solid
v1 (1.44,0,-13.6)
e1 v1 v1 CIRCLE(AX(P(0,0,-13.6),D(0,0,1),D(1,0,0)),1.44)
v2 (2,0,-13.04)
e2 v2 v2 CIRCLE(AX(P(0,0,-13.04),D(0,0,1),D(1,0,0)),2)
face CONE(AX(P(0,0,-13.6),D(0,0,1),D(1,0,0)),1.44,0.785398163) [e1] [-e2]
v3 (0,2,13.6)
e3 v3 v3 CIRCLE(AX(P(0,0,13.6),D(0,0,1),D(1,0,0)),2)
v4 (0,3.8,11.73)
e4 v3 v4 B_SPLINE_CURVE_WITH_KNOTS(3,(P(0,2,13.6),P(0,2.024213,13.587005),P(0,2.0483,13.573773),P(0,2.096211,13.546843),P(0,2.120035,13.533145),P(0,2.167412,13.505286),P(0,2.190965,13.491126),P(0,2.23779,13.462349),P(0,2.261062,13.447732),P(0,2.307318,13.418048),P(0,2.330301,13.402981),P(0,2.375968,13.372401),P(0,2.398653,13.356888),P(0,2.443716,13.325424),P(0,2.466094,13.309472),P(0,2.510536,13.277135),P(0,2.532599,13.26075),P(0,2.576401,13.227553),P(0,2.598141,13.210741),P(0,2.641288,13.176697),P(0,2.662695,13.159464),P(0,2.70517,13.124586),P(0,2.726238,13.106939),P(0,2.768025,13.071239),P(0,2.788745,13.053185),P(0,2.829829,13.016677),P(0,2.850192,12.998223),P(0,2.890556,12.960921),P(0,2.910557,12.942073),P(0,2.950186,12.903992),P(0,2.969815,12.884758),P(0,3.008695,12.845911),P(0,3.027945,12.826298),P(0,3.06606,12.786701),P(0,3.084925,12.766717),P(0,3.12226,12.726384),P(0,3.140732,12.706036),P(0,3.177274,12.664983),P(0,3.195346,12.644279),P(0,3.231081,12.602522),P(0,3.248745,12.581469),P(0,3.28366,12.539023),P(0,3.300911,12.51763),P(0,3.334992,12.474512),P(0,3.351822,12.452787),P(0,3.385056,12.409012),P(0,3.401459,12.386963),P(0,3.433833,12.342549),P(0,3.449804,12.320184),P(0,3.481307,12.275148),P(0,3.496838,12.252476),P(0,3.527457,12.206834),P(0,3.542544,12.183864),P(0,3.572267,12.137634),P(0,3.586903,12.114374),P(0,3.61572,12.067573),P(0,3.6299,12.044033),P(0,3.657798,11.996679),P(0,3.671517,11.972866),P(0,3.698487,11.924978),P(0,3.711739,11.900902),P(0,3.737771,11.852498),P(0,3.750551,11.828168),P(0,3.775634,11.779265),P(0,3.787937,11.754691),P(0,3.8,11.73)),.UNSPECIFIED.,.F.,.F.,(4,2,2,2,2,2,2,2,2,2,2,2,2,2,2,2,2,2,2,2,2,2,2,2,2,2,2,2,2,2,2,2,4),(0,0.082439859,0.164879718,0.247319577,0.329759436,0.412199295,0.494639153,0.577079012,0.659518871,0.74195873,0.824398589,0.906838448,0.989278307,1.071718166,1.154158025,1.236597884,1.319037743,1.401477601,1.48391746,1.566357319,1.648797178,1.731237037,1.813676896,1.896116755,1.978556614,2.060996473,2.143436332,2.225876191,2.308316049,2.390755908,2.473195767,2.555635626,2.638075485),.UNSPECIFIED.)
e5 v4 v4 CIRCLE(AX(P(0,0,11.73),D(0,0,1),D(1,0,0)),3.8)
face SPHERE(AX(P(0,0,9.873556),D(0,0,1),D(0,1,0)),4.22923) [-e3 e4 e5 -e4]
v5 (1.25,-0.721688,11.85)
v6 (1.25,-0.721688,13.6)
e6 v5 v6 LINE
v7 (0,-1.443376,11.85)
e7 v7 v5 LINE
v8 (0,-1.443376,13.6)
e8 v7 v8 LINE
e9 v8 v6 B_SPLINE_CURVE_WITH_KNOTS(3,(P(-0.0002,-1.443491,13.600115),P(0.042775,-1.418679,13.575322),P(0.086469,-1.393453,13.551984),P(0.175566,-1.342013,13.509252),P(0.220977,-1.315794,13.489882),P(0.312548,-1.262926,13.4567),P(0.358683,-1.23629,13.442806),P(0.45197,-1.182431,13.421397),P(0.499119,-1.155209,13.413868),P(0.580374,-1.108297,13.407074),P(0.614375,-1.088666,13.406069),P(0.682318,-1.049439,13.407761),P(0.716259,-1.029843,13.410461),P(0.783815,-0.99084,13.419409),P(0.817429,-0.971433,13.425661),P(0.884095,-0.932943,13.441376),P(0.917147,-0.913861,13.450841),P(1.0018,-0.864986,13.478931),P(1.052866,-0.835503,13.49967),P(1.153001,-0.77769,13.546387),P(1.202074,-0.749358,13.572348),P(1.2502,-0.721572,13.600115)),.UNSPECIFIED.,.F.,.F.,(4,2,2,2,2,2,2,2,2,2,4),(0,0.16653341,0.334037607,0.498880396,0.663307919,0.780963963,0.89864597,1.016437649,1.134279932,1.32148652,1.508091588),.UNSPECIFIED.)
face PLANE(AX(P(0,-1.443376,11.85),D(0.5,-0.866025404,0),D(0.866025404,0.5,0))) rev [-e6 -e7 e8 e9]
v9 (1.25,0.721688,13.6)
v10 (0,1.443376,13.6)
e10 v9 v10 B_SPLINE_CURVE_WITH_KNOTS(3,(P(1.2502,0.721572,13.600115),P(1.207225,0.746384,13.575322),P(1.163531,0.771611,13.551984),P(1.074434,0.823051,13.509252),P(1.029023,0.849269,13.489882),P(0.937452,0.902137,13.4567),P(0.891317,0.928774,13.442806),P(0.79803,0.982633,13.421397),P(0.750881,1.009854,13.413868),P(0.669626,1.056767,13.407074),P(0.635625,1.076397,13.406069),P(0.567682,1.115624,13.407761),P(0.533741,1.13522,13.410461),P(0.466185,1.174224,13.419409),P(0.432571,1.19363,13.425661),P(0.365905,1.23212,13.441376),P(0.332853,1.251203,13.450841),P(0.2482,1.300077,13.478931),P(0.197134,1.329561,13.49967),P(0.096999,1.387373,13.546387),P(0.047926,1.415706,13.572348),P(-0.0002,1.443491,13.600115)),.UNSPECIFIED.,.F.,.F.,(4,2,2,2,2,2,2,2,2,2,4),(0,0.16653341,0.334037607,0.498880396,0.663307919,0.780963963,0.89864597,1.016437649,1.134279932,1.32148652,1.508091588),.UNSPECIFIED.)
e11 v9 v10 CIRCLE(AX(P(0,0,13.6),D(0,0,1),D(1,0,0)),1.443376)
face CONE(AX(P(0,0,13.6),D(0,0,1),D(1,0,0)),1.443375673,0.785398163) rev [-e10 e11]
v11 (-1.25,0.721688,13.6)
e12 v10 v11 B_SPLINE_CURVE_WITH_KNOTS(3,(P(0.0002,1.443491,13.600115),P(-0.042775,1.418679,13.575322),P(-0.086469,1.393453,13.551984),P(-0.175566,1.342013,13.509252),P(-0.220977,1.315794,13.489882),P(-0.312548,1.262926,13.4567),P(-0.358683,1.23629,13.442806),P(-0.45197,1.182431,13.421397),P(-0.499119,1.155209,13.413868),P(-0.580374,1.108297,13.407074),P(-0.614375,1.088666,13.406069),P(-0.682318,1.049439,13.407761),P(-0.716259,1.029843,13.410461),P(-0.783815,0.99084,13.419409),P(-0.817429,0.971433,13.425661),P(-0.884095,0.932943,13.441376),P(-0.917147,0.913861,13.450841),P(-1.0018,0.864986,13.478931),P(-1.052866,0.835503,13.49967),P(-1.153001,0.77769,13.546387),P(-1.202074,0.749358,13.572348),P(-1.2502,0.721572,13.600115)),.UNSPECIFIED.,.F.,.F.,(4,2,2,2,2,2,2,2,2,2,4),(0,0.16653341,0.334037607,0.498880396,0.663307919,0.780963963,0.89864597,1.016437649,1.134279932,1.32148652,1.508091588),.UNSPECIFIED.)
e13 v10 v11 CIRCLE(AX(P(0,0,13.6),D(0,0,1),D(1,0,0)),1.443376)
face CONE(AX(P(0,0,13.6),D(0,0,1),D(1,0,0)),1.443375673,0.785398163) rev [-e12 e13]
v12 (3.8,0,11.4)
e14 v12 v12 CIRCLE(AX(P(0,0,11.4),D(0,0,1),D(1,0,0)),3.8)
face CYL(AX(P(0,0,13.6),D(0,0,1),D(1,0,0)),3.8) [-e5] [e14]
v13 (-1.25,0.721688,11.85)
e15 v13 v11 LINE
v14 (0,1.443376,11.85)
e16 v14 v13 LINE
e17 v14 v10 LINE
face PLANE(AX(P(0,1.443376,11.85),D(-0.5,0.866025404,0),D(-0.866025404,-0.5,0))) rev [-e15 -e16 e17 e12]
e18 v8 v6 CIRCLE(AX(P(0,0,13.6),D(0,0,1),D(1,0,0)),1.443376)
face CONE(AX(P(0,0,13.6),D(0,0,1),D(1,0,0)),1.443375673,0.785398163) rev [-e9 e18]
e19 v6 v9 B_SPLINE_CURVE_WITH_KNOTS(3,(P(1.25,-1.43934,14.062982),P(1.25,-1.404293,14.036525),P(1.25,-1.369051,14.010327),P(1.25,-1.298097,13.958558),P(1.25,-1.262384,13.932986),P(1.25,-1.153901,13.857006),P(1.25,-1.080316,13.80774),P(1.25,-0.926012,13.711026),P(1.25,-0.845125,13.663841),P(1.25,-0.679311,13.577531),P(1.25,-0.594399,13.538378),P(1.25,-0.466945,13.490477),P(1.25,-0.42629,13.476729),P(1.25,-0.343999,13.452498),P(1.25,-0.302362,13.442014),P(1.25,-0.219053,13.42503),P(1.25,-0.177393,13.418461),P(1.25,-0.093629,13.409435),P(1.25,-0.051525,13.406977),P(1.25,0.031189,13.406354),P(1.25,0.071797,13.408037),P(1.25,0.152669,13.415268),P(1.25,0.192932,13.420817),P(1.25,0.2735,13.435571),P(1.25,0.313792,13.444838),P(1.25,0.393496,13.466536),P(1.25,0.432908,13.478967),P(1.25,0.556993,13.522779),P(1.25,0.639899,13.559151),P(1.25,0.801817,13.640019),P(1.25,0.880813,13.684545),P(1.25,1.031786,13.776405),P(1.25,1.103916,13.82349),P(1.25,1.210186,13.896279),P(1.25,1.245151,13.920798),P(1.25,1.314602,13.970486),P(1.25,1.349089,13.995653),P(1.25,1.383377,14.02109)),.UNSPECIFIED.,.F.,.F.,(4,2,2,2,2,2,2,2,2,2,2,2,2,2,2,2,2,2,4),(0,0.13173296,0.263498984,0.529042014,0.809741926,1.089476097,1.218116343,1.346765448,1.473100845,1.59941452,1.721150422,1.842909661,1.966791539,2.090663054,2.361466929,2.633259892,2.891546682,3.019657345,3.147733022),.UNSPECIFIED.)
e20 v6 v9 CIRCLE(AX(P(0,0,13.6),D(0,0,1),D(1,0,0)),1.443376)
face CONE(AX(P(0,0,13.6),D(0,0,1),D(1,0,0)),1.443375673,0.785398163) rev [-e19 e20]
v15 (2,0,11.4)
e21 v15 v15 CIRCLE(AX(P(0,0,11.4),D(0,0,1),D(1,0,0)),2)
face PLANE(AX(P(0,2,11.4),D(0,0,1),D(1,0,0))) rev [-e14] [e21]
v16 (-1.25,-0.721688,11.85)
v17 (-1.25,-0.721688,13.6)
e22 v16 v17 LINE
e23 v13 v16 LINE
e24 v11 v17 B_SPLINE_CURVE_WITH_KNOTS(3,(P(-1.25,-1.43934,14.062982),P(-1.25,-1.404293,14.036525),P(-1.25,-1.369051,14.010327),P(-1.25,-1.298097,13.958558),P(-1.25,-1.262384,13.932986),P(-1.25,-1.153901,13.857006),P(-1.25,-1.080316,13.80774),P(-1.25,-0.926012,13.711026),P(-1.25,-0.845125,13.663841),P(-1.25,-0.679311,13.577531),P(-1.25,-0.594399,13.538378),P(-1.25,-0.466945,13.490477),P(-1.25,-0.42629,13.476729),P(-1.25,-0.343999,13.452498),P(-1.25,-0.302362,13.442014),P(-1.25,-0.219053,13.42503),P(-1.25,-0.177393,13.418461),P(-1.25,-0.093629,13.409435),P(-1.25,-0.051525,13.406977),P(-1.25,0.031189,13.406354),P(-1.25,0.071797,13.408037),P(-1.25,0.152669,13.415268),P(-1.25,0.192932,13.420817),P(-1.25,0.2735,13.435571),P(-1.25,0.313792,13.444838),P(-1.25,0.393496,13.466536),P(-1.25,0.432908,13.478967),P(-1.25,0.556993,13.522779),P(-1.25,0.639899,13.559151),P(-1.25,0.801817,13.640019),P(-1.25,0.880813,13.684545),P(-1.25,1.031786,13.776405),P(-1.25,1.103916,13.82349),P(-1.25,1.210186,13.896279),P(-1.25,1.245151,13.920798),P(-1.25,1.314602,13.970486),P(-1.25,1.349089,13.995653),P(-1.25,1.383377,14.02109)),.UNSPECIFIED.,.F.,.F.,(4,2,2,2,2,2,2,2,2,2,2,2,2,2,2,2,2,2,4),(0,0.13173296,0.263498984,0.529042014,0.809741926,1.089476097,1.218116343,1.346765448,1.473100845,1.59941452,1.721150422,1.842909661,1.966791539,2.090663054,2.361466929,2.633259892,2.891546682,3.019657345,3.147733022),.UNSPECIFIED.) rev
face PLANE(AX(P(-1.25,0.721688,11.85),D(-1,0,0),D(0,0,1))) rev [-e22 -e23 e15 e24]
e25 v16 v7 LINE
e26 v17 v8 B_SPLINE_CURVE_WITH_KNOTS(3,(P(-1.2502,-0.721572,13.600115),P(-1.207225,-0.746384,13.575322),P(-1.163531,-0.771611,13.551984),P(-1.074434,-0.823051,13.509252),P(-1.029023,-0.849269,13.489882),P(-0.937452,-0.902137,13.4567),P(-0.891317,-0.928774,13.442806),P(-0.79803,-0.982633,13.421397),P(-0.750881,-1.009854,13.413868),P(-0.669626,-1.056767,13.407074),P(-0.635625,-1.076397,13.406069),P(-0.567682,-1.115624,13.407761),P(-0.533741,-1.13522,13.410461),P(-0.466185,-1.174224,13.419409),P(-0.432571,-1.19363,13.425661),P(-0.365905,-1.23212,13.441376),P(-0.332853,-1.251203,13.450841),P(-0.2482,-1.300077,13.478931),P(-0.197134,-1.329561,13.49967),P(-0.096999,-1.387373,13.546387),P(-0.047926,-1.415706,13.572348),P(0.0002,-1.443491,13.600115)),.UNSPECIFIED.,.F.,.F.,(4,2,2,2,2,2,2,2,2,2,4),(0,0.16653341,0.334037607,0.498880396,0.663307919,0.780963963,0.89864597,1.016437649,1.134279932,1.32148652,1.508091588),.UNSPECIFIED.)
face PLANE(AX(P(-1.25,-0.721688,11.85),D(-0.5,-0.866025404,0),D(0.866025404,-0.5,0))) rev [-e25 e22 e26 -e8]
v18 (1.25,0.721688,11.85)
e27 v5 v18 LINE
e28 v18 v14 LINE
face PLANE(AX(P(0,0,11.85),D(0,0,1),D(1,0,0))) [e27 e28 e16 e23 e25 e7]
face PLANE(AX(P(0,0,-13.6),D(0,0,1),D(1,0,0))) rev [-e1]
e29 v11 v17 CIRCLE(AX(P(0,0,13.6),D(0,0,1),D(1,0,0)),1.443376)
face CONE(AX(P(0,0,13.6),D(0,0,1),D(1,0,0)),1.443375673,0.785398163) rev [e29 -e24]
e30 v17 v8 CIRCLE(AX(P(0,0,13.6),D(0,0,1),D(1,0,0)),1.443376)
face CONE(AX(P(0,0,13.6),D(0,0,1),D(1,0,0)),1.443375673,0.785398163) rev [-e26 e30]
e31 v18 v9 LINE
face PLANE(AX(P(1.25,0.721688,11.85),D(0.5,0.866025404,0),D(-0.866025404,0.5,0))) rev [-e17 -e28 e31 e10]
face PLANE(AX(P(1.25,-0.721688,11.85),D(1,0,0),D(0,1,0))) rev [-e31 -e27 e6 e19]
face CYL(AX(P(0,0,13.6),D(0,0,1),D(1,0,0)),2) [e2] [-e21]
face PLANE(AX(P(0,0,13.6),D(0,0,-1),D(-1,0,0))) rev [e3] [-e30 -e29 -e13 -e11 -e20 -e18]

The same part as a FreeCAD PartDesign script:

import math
import FreeCAD as App
import Part
import Sketcher
Q = App.Units.Quantity


def add_polygon(sketch, points):
    """Adds a closed chain of lines whose ends are joined by coincident constraints."""
    first, n = sketch.GeometryCount, len(points)
    for a, b in zip(points, points[1:] + points[:1]):
        sketch.addGeometry(Part.LineSegment(App.Vector(*a, 0), App.Vector(*b, 0)), False)
    for i in range(n):
        sketch.addConstraint(Sketcher.Constraint("Coincident", first + i, 2, first + (i + 1) % n, 1))

doc = App.newDocument("Part")
params = doc.addObject("Spreadsheet::Sheet", "Params")
for row, (alias, value) in enumerate([
    ("sketch1_width", "2 mm"),
    ("sketch1_width2", "1.8 mm"),
    ("sketch1_height", "27.2 mm"),
    ("sketch1_width3", "1.44 mm"),
    ("sketch1_height2", "0.33 mm"),
    ("revolution_angle", "360 deg"),
    ("pocket1_length", "1.75 mm"),
    ("groove_angle", "360 deg"),
], start=1):
    params.set(f"A{row}", alias)
    params.set(f"B{row}", "=" + value)
    params.setAlias(f"B{row}", alias)

body = doc.addObject("PartDesign::Body", "Body")

# Sketch on YZ plane
sketch1 = body.newObject("Sketcher::SketchObject", "Sketch")
sketch1.AttachmentSupport = (doc.getObject("YZ_Plane"), [""])
sketch1.MapMode = "FlatFace"
sketch1.addGeometry(Part.LineSegment(App.Vector(0, 13.6, 0), App.Vector(0, -13.6, 0)), False)
sketch1.addGeometry(Part.LineSegment(App.Vector(0, -13.6, 0), App.Vector(1.44, -13.6, 0)), False)
sketch1.addGeometry(Part.LineSegment(App.Vector(1.44, -13.6, 0), App.Vector(2, -13.04, 0)), False)
sketch1.addGeometry(Part.LineSegment(App.Vector(2, -13.04, 0), App.Vector(2, 11.4, 0)), False)
sketch1.addGeometry(Part.LineSegment(App.Vector(2, 11.4, 0), App.Vector(3.8, 11.4, 0)), False)
sketch1.addGeometry(Part.LineSegment(App.Vector(3.8, 11.4, 0), App.Vector(3.8, 11.73, 0)), False)
sketch1.addGeometry(Part.ArcOfCircle(Part.Circle(App.Vector(0, 9.87, 0), App.Vector(0, 0, 1), 4.23), math.radians(26), math.radians(62)), False)
sketch1.addGeometry(Part.LineSegment(App.Vector(2, 13.6, 0), App.Vector(0, 13.6, 0)), False)
sketch1.addConstraint(Sketcher.Constraint("Coincident", 0, 2, 1, 1))
sketch1.addConstraint(Sketcher.Constraint("Coincident", 1, 2, 2, 1))
sketch1.addConstraint(Sketcher.Constraint("Coincident", 2, 2, 3, 1))
sketch1.addConstraint(Sketcher.Constraint("Coincident", 3, 2, 4, 1))
sketch1.addConstraint(Sketcher.Constraint("Coincident", 4, 2, 5, 1))
sketch1.addConstraint(Sketcher.Constraint("Coincident", 5, 2, 6, 1))
sketch1.addConstraint(Sketcher.Constraint("Coincident", 6, 2, 7, 1))
sketch1.addConstraint(Sketcher.Constraint("Coincident", 7, 2, 0, 1))
sketch1.addConstraint(Sketcher.Constraint("Vertical", 0))
sketch1.addConstraint(Sketcher.Constraint("Horizontal", 1))
sketch1.addConstraint(Sketcher.Constraint("Vertical", 3))
sketch1.addConstraint(Sketcher.Constraint("Horizontal", 4))
sketch1.addConstraint(Sketcher.Constraint("Vertical", 5))
sketch1.addConstraint(Sketcher.Constraint("Horizontal", 7))
sketch1.addConstraint(Sketcher.Constraint("Symmetric", 0, 2, 7, 2, -1, 1))
sketch1.addConstraint(Sketcher.Constraint("PointOnObject", 6, 3, -2))
sketch1.addConstraint(Sketcher.Constraint("Vertical", 3, 2, 6, 2))
sketch1.addConstraint(Sketcher.Constraint("DistanceX", 7, 2, 7, 1, 2.0))
sketch1.addConstraint(Sketcher.Constraint("Angle", 2, Q("45 deg")))
sketch1.addConstraint(Sketcher.Constraint("DistanceX", 4, 1, 4, 2, 1.8))
sketch1.addConstraint(Sketcher.Constraint("DistanceY", 0, 2, 0, 1, 27.2))
sketch1.addConstraint(Sketcher.Constraint("DistanceY", 1, 2, 3, 2, 25.0))
sketch1.addConstraint(Sketcher.Constraint("DistanceX", 1, 1, 1, 2, 1.44))
sketch1.addConstraint(Sketcher.Constraint("DistanceY", 5, 1, 5, 2, 0.33))
sketch1.setExpression("Constraints[17]", "Params.sketch1_width")
sketch1.setExpression("Constraints[19]", "Params.sketch1_width2")
sketch1.setExpression("Constraints[20]", "Params.sketch1_height")
sketch1.setExpression("Constraints[22]", "Params.sketch1_width3")
sketch1.setExpression("Constraints[23]", "Params.sketch1_height2")
revolution = body.newObject("PartDesign::Revolution", "Revolution")
revolution.Profile = sketch1
revolution.ReferenceAxis = (sketch1, ["V_Axis"])
revolution.setExpression("Angle", "Params.revolution_angle")

# Sketch on XY plane
sketch2 = body.newObject("Sketcher::SketchObject", "Sketch001")
sketch2.AttachmentSupport = (doc.getObject("XY_Plane"), [""])
sketch2.MapMode = "FlatFace"
sketch2.AttachmentOffset = App.Placement(App.Vector(0, 0, 13.6), App.Rotation())
add_polygon(sketch2, [(0, 1.4), (-1.2, 0.7), (-1.2, -0.7), (0, -1.4), (1.2, -0.7), (1.2, 0.7)])  # lines 0-5
sketch2.addConstraint(Sketcher.Constraint("Vertical", 1))
sketch2.addConstraint(Sketcher.Constraint("Vertical", 4))
sketch2.addConstraint(Sketcher.Constraint("Symmetric", 0, 2, 3, 2, -1, 1))
sketch2.addConstraint(Sketcher.Constraint("Symmetric", 2, 2, 5, 2, -1, 1))
sketch2.addConstraint(Sketcher.Constraint("PointOnObject", 2, 2, -2))
sketch2.addConstraint(Sketcher.Constraint("Parallel", 2, 5))
sketch2.addConstraint(Sketcher.Constraint("Horizontal", 1, 2, 3, 2))
sketch2.addConstraint(Sketcher.Constraint("Angle", 0, Q("-150 deg")))
sketch2.addConstraint(Sketcher.Constraint("DistanceX", 1, 2, 3, 2, 2.5))
sketch2.addConstraint(Sketcher.Constraint("DistanceY", 1, 2, 1, 1, 1.443376))
pocket1 = body.newObject("PartDesign::Pocket", "Pocket")
pocket1.Profile = sketch2
pocket1.setExpression("Length", "Params.pocket1_length")

# Sketch on YZ plane
sketch3 = body.newObject("Sketcher::SketchObject", "Sketch002")
sketch3.AttachmentSupport = (doc.getObject("YZ_Plane"), [""])
sketch3.MapMode = "FlatFace"
add_polygon(sketch3, [(0, 13.6), (-1.4, 13.6), (0, 12.2)])  # lines 0-2
sketch3.addConstraint(Sketcher.Constraint("Horizontal", 0))
sketch3.addConstraint(Sketcher.Constraint("Vertical", 2))
sketch3.addConstraint(Sketcher.Constraint("PointOnObject", 1, 2, -2))
sketch3.addConstraint(Sketcher.Constraint("Equal", 0, 2))
sketch3.addConstraint(Sketcher.Constraint("DistanceY", -1, 1, 0, 2, 13.6))
sketch3.addConstraint(Sketcher.Constraint("Distance", 1, 2.041241))
groove = body.newObject("PartDesign::Groove", "Groove")
groove.Profile = sketch3
groove.ReferenceAxis = (sketch3, ["V_Axis"])
groove.setExpression("Angle", "Params.groove_angle")

doc.recompute()
